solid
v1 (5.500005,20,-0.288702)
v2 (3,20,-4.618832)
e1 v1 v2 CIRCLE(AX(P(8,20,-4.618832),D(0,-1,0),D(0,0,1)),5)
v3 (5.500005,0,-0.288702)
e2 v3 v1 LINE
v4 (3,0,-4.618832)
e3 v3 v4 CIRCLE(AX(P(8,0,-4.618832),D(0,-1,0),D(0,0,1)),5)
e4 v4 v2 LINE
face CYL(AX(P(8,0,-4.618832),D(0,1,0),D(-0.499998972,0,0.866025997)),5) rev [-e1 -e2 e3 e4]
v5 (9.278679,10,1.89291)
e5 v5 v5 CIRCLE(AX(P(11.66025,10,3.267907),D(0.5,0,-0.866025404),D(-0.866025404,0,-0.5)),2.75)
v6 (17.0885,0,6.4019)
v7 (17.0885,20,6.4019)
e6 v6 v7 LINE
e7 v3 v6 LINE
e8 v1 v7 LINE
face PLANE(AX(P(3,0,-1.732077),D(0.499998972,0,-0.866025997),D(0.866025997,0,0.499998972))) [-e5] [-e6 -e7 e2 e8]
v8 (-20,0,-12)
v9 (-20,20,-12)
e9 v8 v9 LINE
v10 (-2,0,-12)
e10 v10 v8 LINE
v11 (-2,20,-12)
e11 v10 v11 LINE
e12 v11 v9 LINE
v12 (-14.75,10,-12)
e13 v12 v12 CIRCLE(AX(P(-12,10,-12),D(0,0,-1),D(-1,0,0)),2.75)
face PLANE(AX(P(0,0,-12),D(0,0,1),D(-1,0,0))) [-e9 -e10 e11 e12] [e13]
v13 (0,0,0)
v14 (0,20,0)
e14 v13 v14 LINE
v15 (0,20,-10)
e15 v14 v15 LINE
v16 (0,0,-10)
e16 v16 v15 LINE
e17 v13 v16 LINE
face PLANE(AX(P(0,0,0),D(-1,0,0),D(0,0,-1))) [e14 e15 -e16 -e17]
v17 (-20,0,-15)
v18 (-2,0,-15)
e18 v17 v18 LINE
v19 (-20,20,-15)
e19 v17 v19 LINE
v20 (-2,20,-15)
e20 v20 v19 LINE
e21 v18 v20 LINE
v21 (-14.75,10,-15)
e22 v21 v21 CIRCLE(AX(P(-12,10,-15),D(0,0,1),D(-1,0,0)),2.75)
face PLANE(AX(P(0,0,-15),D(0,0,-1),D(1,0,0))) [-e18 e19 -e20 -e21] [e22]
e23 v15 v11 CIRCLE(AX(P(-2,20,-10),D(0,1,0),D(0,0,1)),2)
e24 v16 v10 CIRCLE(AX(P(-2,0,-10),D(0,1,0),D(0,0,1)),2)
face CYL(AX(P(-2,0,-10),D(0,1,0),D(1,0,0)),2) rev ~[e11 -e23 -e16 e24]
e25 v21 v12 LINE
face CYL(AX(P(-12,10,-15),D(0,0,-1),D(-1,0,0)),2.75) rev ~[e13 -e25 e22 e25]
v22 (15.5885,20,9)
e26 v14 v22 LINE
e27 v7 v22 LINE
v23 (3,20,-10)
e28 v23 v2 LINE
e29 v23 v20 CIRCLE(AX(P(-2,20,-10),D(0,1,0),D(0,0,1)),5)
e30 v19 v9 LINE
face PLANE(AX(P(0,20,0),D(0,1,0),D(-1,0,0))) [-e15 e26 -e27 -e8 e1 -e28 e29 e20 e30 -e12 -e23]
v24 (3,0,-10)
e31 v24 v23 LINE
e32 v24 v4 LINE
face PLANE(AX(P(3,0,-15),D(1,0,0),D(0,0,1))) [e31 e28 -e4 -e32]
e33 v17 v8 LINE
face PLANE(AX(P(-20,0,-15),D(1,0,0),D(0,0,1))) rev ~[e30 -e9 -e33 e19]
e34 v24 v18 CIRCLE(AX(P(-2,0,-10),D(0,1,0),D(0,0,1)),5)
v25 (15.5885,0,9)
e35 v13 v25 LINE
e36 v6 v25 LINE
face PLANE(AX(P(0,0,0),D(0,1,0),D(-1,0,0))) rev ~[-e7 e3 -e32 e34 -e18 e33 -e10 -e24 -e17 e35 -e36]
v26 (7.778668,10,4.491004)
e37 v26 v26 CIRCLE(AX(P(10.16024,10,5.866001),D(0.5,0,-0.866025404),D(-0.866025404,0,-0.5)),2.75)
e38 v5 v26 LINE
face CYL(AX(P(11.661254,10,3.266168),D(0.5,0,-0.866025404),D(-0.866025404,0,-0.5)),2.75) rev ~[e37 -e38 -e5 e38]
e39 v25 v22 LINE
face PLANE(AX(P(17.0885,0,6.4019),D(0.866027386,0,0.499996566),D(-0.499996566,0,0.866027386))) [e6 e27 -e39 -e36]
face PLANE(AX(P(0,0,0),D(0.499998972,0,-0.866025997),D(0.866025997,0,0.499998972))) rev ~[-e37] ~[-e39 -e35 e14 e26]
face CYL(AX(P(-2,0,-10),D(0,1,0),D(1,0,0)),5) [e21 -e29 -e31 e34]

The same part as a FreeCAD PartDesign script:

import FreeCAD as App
import Part
import Sketcher

V = App.Vector
Q = App.Units.Quantity


def edges_at(feature, points):
    """Names of the edges that pass closest to the given points."""
    edges = feature.Shape.Edges
    near = lambda p: min(range(len(edges)), key=lambda i: edges[i].distToShape(Part.Vertex(*p))[0])
    return sorted({f"Edge{near(p) + 1}" for p in points})

doc = App.newDocument("Part")
body = doc.addObject("PartDesign::Body", "Body")

sketch1 = doc.addObject("Sketcher::SketchObject", "Sketch")
body.addObject(sketch1)
sketch1.AttachmentSupport = (doc.XZ_Plane, [""])
sketch1.MapMode = "FlatFace"
sketch1.addGeometry(Part.LineSegment(V(17.1, 6.4, 0), V(3, -1.7, 0)), False)
sketch1.addGeometry(Part.LineSegment(V(3, -1.7, 0), V(3, -15, 0)), False)
sketch1.addGeometry(Part.LineSegment(V(3, -15, 0), V(-20, -15, 0)), False)
sketch1.addGeometry(Part.LineSegment(V(-20, -15, 0), V(-20, -12, 0)), False)
sketch1.addGeometry(Part.LineSegment(V(-20, -12, 0), V(0, -12, 0)), False)
sketch1.addGeometry(Part.LineSegment(V(0, -12, 0), V(0, 0, 0)), False)
sketch1.addGeometry(Part.LineSegment(V(0, 0, 0), V(15.6, 9, 0)), False)
sketch1.addGeometry(Part.LineSegment(V(15.6, 9, 0), V(17.1, 6.4, 0)), False)
sketch1.addConstraint(Sketcher.Constraint("Coincident", 0, 2, 1, 1))
sketch1.addConstraint(Sketcher.Constraint("Coincident", 1, 2, 2, 1))
sketch1.addConstraint(Sketcher.Constraint("Coincident", 2, 2, 3, 1))
sketch1.addConstraint(Sketcher.Constraint("Coincident", 3, 2, 4, 1))
sketch1.addConstraint(Sketcher.Constraint("Coincident", 4, 2, 5, 1))
sketch1.addConstraint(Sketcher.Constraint("Coincident", 5, 2, 6, 1))
sketch1.addConstraint(Sketcher.Constraint("Coincident", 6, 2, 7, 1))
sketch1.addConstraint(Sketcher.Constraint("Coincident", 7, 2, 0, 1))
sketch1.addConstraint(Sketcher.Constraint("Vertical", 1))
sketch1.addConstraint(Sketcher.Constraint("Horizontal", 2))
sketch1.addConstraint(Sketcher.Constraint("Vertical", 3))
sketch1.addConstraint(Sketcher.Constraint("Horizontal", 4))
sketch1.addConstraint(Sketcher.Constraint("Vertical", 5))
sketch1.addConstraint(Sketcher.Constraint("Coincident", 5, 2, -1, 1))
sketch1.addConstraint(Sketcher.Constraint("Parallel", 0, 6))
sketch1.addConstraint(Sketcher.Constraint("Perpendicular", 6, 7))
sketch1.addConstraint(Sketcher.Constraint("DistanceX", 4, 1, 4, 2, Q("20 mm")))
sketch1.addConstraint(Sketcher.Constraint("DistanceY", 3, 1, 3, 2, Q("3 mm")))
sketch1.addConstraint(Sketcher.Constraint("DistanceY", 5, 1, 5, 2, Q("12 mm")))
sketch1.addConstraint(Sketcher.Constraint("Angle", 0, Q("-150 deg")))
sketch1.addConstraint(Sketcher.Constraint("Distance", 6, Q("18 mm")))
sketch1.addConstraint(Sketcher.Constraint("Distance", 7, Q("3 mm")))
sketch1.addConstraint(Sketcher.Constraint("DistanceX", -1, 1, 0, 2, Q("3 mm")))
pad1 = doc.addObject("PartDesign::Pad", "Pad")
body.addObject(pad1)
pad1.Profile = sketch1
pad1.Length = 20
pad1.Reversed = True

sketch2 = doc.addObject("Sketcher::SketchObject", "Sketch001")
body.addObject(sketch2)
sketch2.AttachmentSupport = (doc.XY_Plane, [""])
sketch2.MapMode = "FlatFace"
sketch2.AttachmentOffset = App.Placement(V(0, 0, -15), App.Rotation())
sketch2.addGeometry(Part.Circle(V(-12, 10, 0), V(0, 0, 1), 2.8), False)
sketch2.addConstraint(Sketcher.Constraint("Diameter", 0, Q("5.5 mm")))
sketch2.addConstraint(Sketcher.Constraint("DistanceY", -1, 1, 0, 3, Q("10 mm")))
sketch2.addConstraint(Sketcher.Constraint("DistanceX", 0, 3, -1, 1, Q("12 mm")))
pocket1 = doc.addObject("PartDesign::Pocket", "Pocket")
body.addObject(pocket1)
pocket1.Profile = sketch2
pocket1.Length = 3
pocket1.Reversed = True

sketch3 = doc.addObject("Sketcher::SketchObject", "Sketch002")
body.addObject(sketch3)
sketch3.Placement = App.Placement(V(3, 0, -1.7321), App.Rotation(V(-0.866025404, 0, -0.5), V(0, 1, 0), V(0.5, 0, -0.866025404), "ZXY"))
sketch3.addGeometry(Part.Circle(V(-10, 10, 0), V(0, 0, 1), 2.8), False)
sketch3.addConstraint(Sketcher.Constraint("Diameter", 0, Q("5.5 mm")))
sketch3.addConstraint(Sketcher.Constraint("DistanceX", 0, 3, -1, 1, Q("10 mm")))
sketch3.addConstraint(Sketcher.Constraint("DistanceY", -1, 1, 0, 3, Q("10 mm")))
pocket2 = doc.addObject("PartDesign::Pocket", "Pocket001")
body.addObject(pocket2)
pocket2.Profile = sketch3
pocket2.Length = 3
doc.recompute()

fillet = doc.addObject("PartDesign::Fillet", "Fillet")
body.addObject(fillet)
fillet.Base = (pocket2, edges_at(pocket2, [(3, 10, -1.732), (3, 10, -15)]))
fillet.Radius = 5
doc.recompute()

fillet2 = doc.addObject("PartDesign::Fillet", "Fillet001")
body.addObject(fillet2)
fillet2.Base = (fillet, edges_at(fillet, [(0, 10, -12)]))
fillet2.Radius = 2

doc.recompute()
